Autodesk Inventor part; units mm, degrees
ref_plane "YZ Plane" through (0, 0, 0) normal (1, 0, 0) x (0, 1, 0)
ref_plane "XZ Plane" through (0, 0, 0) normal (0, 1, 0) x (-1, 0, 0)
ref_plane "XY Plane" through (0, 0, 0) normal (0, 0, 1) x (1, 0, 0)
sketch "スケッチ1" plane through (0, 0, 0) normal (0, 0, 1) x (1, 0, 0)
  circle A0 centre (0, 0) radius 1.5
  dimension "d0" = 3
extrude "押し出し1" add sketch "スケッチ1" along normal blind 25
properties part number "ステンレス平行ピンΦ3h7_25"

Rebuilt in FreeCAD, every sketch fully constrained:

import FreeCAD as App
import Part
import Sketcher

doc = App.newDocument("Part")
body = doc.addObject("PartDesign::Body", "Body")

sketch1 = doc.addObject("Sketcher::SketchObject", "Sketch")
body.addObject(sketch1)
sketch1.AttachmentSupport = (doc.XY_Plane, [""])
sketch1.MapMode = "FlatFace"
sketch1.addGeometry(Part.Circle(App.Vector(0, 0, 0), App.Vector(0, 0, 1), 1.5), False)
sketch1.addConstraint(Sketcher.Constraint("Coincident", 0, 3, -1, 1))
sketch1.addConstraint(Sketcher.Constraint("Diameter", 0, 3.0))
pad1 = doc.addObject("PartDesign::Pad", "Pad")
body.addObject(pad1)
pad1.Profile = sketch1
pad1.Length = 25

doc.recompute()
